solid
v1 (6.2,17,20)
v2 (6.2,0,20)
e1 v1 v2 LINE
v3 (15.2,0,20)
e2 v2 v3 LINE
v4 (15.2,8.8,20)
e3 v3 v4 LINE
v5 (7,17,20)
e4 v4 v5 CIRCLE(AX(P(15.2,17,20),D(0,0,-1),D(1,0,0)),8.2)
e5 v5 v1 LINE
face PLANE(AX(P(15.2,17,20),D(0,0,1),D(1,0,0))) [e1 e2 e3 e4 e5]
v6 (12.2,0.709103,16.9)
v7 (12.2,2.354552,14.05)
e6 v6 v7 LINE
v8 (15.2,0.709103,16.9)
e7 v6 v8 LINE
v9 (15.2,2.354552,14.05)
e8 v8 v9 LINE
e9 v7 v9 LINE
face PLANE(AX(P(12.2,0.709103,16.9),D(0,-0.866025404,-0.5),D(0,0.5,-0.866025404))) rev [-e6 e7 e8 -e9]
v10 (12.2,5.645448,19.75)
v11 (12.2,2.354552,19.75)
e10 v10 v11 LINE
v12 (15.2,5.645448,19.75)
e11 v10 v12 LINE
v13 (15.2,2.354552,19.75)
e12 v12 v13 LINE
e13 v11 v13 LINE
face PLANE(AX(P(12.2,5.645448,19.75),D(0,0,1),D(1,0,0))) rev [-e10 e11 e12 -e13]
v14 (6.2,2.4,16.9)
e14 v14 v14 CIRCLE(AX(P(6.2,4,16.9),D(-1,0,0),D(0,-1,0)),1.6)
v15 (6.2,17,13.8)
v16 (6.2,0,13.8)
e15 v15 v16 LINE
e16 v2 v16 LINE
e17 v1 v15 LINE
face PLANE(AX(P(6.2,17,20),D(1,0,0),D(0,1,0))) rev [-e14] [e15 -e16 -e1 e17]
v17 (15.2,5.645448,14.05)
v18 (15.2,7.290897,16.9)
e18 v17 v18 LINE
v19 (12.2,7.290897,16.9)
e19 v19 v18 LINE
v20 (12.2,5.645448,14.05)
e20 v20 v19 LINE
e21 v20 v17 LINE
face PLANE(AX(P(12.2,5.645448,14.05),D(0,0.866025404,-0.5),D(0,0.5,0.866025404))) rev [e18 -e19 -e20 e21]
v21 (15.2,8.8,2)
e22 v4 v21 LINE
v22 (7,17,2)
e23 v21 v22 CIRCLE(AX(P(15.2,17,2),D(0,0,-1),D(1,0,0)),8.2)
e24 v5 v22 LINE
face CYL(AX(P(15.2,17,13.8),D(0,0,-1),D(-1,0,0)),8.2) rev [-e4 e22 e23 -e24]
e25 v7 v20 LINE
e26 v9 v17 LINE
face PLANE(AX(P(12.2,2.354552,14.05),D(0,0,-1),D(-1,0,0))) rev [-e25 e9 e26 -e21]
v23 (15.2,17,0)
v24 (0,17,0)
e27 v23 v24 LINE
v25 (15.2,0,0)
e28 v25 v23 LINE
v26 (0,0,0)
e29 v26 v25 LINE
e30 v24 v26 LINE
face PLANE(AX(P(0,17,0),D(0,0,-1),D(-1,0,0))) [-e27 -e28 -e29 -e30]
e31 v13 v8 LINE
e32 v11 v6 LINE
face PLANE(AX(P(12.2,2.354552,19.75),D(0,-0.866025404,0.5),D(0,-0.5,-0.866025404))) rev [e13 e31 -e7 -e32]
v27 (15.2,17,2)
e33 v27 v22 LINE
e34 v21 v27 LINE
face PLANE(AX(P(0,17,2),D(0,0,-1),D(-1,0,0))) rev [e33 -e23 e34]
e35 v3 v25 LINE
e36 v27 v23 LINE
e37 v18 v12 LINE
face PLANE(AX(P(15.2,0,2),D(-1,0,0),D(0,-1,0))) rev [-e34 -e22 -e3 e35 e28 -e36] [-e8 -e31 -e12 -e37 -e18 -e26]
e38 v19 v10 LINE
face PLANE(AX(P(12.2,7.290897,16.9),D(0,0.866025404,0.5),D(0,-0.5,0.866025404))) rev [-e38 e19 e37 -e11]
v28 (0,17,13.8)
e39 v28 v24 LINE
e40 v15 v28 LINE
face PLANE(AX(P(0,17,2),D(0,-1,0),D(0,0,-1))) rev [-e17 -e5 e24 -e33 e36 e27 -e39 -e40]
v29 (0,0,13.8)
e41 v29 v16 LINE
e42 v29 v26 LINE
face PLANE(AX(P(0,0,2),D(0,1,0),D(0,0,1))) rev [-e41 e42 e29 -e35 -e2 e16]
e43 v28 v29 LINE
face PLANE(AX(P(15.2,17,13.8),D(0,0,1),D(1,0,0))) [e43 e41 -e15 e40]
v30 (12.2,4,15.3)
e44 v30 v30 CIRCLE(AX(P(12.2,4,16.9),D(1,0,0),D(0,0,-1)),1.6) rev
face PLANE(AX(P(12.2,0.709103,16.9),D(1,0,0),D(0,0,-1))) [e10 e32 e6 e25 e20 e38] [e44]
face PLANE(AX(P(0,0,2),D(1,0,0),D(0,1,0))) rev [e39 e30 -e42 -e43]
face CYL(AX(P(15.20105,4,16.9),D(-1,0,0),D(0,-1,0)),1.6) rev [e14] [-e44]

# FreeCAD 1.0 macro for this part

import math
import FreeCAD as App
import Part
import Sketcher

V = App.Vector
Q = App.Units.Quantity

doc = App.newDocument("Part")
body = doc.addObject("PartDesign::Body", "Body")

# Sketch on XY plane
sketch1 = doc.addObject("Sketcher::SketchObject", "Sketch")
body.addObject(sketch1)
sketch1.AttachmentSupport = (doc.XY_Plane, [""])
sketch1.MapMode = "FlatFace"
sketch1.addGeometry([
    Part.LineSegment(V(0, 17, 0), V(0, 0, 0)),
    Part.LineSegment(V(0, 0, 0), V(15, 0, 0)),
    Part.LineSegment(V(15, 0, 0), V(15, 17, 0)),
    Part.LineSegment(V(15, 17, 0), V(0, 17, 0)),
], False)
sketch1.addConstraint([
    Sketcher.Constraint("Coincident", 0, 2, 1, 1),
    Sketcher.Constraint("Coincident", 1, 2, 2, 1),
    Sketcher.Constraint("Coincident", 2, 2, 3, 1),
    Sketcher.Constraint("Coincident", 3, 2, 0, 1),
    Sketcher.Constraint("Vertical", 0),
    Sketcher.Constraint("Horizontal", 1),
    Sketcher.Constraint("Vertical", 2),
    Sketcher.Constraint("Horizontal", 3),
    Sketcher.Constraint("Coincident", 0, 2, -1, 1),
    Sketcher.Constraint("DistanceY", 0, 2, 0, 1, 17.0),
    Sketcher.Constraint("DistanceX", 1, 1, 1, 2, 15.2),
])
pad1 = doc.addObject("PartDesign::Pad", "Pad")
body.addObject(pad1)
pad1.Profile = sketch1
pad1.Length = 2

# Sketch on XY plane
sketch2 = doc.addObject("Sketcher::SketchObject", "Sketch001")
body.addObject(sketch2)
sketch2.AttachmentSupport = (doc.XY_Plane, [""])
sketch2.MapMode = "FlatFace"
sketch2.AttachmentOffset = App.Placement(V(0, 0, 2), App.Rotation())
sketch2.addGeometry([
    Part.LineSegment(V(0, 17, 0), V(0, 0, 0)),  # 0
    Part.LineSegment(V(0, 0, 0), V(15, 0, 0)),  # 1
    Part.LineSegment(V(15, 0, 0), V(15, 9, 0)),  # 2
    Part.ArcOfCircle(Part.Circle(V(15, 17, 0), V(0, 0, 1), 8), math.radians(180), math.radians(270)),  # 3
    Part.LineSegment(V(7, 17, 0), V(0, 17, 0)),  # 4
], False)
sketch2.addConstraint([
    Sketcher.Constraint("Coincident", 0, 2, 1, 1),
    Sketcher.Constraint("Coincident", 1, 2, 2, 1),
    Sketcher.Constraint("Coincident", 2, 2, 3, 2),
    Sketcher.Constraint("Coincident", 3, 1, 4, 1),
    Sketcher.Constraint("Coincident", 4, 2, 0, 1),
    Sketcher.Constraint("Vertical", 0),
    Sketcher.Constraint("Horizontal", 1),
    Sketcher.Constraint("Vertical", 2),
    Sketcher.Constraint("Horizontal", 4),
    Sketcher.Constraint("Coincident", 0, 2, -1, 1),
    Sketcher.Constraint("Vertical", 3, 3, 1, 2),
    Sketcher.Constraint("Radius", 3, 8.2),
    Sketcher.Constraint("DistanceX", 4, 2, 4, 1, 7.0),
    Sketcher.Constraint("DistanceY", 0, 2, 0, 1, 17.0),
    Sketcher.Constraint("DistanceY", 2, 1, 2, 2, 8.8),
])
pad2 = doc.addObject("PartDesign::Pad", "Pad001")
body.addObject(pad2)
pad2.Profile = sketch2
pad2.Length = 11.8

# Sketch on XY plane
sketch3 = doc.addObject("Sketcher::SketchObject", "Sketch002")
body.addObject(sketch3)
sketch3.AttachmentSupport = (doc.XY_Plane, [""])
sketch3.MapMode = "FlatFace"
sketch3.AttachmentOffset = App.Placement(V(0, 0, 13.8), App.Rotation())
sketch3.addGeometry([
    Part.LineSegment(V(6.2, 17, 0), V(6.2, 0, 0)),  # 0
    Part.LineSegment(V(6.2, 0, 0), V(15.2, 0, 0)),  # 1
    Part.LineSegment(V(15.2, 0, 0), V(15.2, 8.8, 0)),  # 2
    Part.ArcOfCircle(Part.Circle(V(15.2, 17, 0), V(0, 0, 1), 8.2), math.radians(180), math.radians(270)),  # 3
    Part.LineSegment(V(7, 17, 0), V(6.2, 17, 0)),  # 4
], False)
sketch3.addConstraint([
    Sketcher.Constraint("Coincident", 0, 2, 1, 1),
    Sketcher.Constraint("Coincident", 1, 2, 2, 1),
    Sketcher.Constraint("Coincident", 2, 2, 3, 2),
    Sketcher.Constraint("Coincident", 3, 1, 4, 1),
    Sketcher.Constraint("Coincident", 4, 2, 0, 1),
    Sketcher.Constraint("Vertical", 0),
    Sketcher.Constraint("Horizontal", 1),
    Sketcher.Constraint("Vertical", 2),
    Sketcher.Constraint("Horizontal", 4),
    Sketcher.Constraint("PointOnObject", 0, 2, -1),
    Sketcher.Constraint("Vertical", 3, 3, 1, 2),
    Sketcher.Constraint("Radius", 3, 8.2),
    Sketcher.Constraint("DistanceX", 1, 1, 1, 2, 9.0),
    Sketcher.Constraint("DistanceY", 0, 2, 0, 1, 17.0),
    Sketcher.Constraint("DistanceY", 2, 1, 2, 2, 8.8),
    Sketcher.Constraint("DistanceX", -1, 1, 3, 1, 7.0),
])
pad3 = doc.addObject("PartDesign::Pad", "Pad002")
body.addObject(pad3)
pad3.Profile = sketch3
pad3.Length = 6.2

# Sketch on YZ plane
sketch4 = doc.addObject("Sketcher::SketchObject", "Sketch003")
body.addObject(sketch4)
sketch4.AttachmentSupport = (doc.YZ_Plane, [""])
sketch4.MapMode = "FlatFace"
sketch4.AttachmentOffset = App.Placement(V(0, 0, 6.2), App.Rotation())
sketch4.addGeometry(Part.Circle(V(4, 16.9, 0), V(0, 0, 1), 1.6), False)
sketch4.addConstraint([
    Sketcher.Constraint("Diameter", 0, 3.2),
    Sketcher.Constraint("DistanceX", -1, 1, 0, 3, 4.0),
    Sketcher.Constraint("DistanceY", -1, 1, 0, 3, 16.9),
])
pocket1 = doc.addObject("PartDesign::Pocket", "Pocket")
body.addObject(pocket1)
pocket1.Profile = sketch4
pocket1.Type = "UpToFirst"
pocket1.Reversed = True

# Sketch on YZ plane
sketch5 = doc.addObject("Sketcher::SketchObject", "Sketch004")
body.addObject(sketch5)
sketch5.AttachmentSupport = (doc.YZ_Plane, [""])
sketch5.MapMode = "FlatFace"
sketch5.AttachmentOffset = App.Placement(V(0, 0, 15.2), App.Rotation())
sketch5.addGeometry([
    Part.LineSegment(V(0.7, 16.9, 0), V(2.4, 14.1, 0)),  # 0
    Part.LineSegment(V(2.4, 14.1, 0), V(5.6, 14.1, 0)),  # 1
    Part.LineSegment(V(5.6, 14.1, 0), V(7.3, 16.9, 0)),  # 2
    Part.LineSegment(V(7.3, 16.9, 0), V(5.6, 19.8, 0)),  # 3
    Part.LineSegment(V(5.6, 19.8, 0), V(2.4, 19.8, 0)),  # 4
    Part.LineSegment(V(2.4, 19.8, 0), V(0.7, 16.9, 0)),  # 5
], False)
sketch5.addConstraint([
    Sketcher.Constraint("Coincident", 0, 2, 1, 1),
    Sketcher.Constraint("Coincident", 1, 2, 2, 1),
    Sketcher.Constraint("Coincident", 2, 2, 3, 1),
    Sketcher.Constraint("Coincident", 3, 2, 4, 1),
    Sketcher.Constraint("Coincident", 4, 2, 5, 1),
    Sketcher.Constraint("Coincident", 5, 2, 0, 1),
    Sketcher.Constraint("Horizontal", 1),
    Sketcher.Constraint("Horizontal", 4),
    Sketcher.Constraint("Parallel", 0, 3),
    Sketcher.Constraint("Parallel", 2, 5),
    Sketcher.Constraint("Horizontal", 2, 2, 5, 2),
    Sketcher.Constraint("Vertical", 1, 2, 3, 2),
    Sketcher.Constraint("Vertical", 0, 2, 4, 2),
    Sketcher.Constraint("Angle", 0, Q("-60 deg")),
    Sketcher.Constraint("DistanceY", -1, 1, 2, 2, 16.9),
    Sketcher.Constraint("DistanceY", 1, 2, 3, 2, 5.7),
    Sketcher.Constraint("DistanceX", 1, 1, 1, 2, 3.290897),
    Sketcher.Constraint("DistanceX", -1, 1, 0, 2, 2.354552),
])
pocket2 = doc.addObject("PartDesign::Pocket", "Pocket001")
body.addObject(pocket2)
pocket2.Profile = sketch5
pocket2.Length = 3

doc.recompute()
